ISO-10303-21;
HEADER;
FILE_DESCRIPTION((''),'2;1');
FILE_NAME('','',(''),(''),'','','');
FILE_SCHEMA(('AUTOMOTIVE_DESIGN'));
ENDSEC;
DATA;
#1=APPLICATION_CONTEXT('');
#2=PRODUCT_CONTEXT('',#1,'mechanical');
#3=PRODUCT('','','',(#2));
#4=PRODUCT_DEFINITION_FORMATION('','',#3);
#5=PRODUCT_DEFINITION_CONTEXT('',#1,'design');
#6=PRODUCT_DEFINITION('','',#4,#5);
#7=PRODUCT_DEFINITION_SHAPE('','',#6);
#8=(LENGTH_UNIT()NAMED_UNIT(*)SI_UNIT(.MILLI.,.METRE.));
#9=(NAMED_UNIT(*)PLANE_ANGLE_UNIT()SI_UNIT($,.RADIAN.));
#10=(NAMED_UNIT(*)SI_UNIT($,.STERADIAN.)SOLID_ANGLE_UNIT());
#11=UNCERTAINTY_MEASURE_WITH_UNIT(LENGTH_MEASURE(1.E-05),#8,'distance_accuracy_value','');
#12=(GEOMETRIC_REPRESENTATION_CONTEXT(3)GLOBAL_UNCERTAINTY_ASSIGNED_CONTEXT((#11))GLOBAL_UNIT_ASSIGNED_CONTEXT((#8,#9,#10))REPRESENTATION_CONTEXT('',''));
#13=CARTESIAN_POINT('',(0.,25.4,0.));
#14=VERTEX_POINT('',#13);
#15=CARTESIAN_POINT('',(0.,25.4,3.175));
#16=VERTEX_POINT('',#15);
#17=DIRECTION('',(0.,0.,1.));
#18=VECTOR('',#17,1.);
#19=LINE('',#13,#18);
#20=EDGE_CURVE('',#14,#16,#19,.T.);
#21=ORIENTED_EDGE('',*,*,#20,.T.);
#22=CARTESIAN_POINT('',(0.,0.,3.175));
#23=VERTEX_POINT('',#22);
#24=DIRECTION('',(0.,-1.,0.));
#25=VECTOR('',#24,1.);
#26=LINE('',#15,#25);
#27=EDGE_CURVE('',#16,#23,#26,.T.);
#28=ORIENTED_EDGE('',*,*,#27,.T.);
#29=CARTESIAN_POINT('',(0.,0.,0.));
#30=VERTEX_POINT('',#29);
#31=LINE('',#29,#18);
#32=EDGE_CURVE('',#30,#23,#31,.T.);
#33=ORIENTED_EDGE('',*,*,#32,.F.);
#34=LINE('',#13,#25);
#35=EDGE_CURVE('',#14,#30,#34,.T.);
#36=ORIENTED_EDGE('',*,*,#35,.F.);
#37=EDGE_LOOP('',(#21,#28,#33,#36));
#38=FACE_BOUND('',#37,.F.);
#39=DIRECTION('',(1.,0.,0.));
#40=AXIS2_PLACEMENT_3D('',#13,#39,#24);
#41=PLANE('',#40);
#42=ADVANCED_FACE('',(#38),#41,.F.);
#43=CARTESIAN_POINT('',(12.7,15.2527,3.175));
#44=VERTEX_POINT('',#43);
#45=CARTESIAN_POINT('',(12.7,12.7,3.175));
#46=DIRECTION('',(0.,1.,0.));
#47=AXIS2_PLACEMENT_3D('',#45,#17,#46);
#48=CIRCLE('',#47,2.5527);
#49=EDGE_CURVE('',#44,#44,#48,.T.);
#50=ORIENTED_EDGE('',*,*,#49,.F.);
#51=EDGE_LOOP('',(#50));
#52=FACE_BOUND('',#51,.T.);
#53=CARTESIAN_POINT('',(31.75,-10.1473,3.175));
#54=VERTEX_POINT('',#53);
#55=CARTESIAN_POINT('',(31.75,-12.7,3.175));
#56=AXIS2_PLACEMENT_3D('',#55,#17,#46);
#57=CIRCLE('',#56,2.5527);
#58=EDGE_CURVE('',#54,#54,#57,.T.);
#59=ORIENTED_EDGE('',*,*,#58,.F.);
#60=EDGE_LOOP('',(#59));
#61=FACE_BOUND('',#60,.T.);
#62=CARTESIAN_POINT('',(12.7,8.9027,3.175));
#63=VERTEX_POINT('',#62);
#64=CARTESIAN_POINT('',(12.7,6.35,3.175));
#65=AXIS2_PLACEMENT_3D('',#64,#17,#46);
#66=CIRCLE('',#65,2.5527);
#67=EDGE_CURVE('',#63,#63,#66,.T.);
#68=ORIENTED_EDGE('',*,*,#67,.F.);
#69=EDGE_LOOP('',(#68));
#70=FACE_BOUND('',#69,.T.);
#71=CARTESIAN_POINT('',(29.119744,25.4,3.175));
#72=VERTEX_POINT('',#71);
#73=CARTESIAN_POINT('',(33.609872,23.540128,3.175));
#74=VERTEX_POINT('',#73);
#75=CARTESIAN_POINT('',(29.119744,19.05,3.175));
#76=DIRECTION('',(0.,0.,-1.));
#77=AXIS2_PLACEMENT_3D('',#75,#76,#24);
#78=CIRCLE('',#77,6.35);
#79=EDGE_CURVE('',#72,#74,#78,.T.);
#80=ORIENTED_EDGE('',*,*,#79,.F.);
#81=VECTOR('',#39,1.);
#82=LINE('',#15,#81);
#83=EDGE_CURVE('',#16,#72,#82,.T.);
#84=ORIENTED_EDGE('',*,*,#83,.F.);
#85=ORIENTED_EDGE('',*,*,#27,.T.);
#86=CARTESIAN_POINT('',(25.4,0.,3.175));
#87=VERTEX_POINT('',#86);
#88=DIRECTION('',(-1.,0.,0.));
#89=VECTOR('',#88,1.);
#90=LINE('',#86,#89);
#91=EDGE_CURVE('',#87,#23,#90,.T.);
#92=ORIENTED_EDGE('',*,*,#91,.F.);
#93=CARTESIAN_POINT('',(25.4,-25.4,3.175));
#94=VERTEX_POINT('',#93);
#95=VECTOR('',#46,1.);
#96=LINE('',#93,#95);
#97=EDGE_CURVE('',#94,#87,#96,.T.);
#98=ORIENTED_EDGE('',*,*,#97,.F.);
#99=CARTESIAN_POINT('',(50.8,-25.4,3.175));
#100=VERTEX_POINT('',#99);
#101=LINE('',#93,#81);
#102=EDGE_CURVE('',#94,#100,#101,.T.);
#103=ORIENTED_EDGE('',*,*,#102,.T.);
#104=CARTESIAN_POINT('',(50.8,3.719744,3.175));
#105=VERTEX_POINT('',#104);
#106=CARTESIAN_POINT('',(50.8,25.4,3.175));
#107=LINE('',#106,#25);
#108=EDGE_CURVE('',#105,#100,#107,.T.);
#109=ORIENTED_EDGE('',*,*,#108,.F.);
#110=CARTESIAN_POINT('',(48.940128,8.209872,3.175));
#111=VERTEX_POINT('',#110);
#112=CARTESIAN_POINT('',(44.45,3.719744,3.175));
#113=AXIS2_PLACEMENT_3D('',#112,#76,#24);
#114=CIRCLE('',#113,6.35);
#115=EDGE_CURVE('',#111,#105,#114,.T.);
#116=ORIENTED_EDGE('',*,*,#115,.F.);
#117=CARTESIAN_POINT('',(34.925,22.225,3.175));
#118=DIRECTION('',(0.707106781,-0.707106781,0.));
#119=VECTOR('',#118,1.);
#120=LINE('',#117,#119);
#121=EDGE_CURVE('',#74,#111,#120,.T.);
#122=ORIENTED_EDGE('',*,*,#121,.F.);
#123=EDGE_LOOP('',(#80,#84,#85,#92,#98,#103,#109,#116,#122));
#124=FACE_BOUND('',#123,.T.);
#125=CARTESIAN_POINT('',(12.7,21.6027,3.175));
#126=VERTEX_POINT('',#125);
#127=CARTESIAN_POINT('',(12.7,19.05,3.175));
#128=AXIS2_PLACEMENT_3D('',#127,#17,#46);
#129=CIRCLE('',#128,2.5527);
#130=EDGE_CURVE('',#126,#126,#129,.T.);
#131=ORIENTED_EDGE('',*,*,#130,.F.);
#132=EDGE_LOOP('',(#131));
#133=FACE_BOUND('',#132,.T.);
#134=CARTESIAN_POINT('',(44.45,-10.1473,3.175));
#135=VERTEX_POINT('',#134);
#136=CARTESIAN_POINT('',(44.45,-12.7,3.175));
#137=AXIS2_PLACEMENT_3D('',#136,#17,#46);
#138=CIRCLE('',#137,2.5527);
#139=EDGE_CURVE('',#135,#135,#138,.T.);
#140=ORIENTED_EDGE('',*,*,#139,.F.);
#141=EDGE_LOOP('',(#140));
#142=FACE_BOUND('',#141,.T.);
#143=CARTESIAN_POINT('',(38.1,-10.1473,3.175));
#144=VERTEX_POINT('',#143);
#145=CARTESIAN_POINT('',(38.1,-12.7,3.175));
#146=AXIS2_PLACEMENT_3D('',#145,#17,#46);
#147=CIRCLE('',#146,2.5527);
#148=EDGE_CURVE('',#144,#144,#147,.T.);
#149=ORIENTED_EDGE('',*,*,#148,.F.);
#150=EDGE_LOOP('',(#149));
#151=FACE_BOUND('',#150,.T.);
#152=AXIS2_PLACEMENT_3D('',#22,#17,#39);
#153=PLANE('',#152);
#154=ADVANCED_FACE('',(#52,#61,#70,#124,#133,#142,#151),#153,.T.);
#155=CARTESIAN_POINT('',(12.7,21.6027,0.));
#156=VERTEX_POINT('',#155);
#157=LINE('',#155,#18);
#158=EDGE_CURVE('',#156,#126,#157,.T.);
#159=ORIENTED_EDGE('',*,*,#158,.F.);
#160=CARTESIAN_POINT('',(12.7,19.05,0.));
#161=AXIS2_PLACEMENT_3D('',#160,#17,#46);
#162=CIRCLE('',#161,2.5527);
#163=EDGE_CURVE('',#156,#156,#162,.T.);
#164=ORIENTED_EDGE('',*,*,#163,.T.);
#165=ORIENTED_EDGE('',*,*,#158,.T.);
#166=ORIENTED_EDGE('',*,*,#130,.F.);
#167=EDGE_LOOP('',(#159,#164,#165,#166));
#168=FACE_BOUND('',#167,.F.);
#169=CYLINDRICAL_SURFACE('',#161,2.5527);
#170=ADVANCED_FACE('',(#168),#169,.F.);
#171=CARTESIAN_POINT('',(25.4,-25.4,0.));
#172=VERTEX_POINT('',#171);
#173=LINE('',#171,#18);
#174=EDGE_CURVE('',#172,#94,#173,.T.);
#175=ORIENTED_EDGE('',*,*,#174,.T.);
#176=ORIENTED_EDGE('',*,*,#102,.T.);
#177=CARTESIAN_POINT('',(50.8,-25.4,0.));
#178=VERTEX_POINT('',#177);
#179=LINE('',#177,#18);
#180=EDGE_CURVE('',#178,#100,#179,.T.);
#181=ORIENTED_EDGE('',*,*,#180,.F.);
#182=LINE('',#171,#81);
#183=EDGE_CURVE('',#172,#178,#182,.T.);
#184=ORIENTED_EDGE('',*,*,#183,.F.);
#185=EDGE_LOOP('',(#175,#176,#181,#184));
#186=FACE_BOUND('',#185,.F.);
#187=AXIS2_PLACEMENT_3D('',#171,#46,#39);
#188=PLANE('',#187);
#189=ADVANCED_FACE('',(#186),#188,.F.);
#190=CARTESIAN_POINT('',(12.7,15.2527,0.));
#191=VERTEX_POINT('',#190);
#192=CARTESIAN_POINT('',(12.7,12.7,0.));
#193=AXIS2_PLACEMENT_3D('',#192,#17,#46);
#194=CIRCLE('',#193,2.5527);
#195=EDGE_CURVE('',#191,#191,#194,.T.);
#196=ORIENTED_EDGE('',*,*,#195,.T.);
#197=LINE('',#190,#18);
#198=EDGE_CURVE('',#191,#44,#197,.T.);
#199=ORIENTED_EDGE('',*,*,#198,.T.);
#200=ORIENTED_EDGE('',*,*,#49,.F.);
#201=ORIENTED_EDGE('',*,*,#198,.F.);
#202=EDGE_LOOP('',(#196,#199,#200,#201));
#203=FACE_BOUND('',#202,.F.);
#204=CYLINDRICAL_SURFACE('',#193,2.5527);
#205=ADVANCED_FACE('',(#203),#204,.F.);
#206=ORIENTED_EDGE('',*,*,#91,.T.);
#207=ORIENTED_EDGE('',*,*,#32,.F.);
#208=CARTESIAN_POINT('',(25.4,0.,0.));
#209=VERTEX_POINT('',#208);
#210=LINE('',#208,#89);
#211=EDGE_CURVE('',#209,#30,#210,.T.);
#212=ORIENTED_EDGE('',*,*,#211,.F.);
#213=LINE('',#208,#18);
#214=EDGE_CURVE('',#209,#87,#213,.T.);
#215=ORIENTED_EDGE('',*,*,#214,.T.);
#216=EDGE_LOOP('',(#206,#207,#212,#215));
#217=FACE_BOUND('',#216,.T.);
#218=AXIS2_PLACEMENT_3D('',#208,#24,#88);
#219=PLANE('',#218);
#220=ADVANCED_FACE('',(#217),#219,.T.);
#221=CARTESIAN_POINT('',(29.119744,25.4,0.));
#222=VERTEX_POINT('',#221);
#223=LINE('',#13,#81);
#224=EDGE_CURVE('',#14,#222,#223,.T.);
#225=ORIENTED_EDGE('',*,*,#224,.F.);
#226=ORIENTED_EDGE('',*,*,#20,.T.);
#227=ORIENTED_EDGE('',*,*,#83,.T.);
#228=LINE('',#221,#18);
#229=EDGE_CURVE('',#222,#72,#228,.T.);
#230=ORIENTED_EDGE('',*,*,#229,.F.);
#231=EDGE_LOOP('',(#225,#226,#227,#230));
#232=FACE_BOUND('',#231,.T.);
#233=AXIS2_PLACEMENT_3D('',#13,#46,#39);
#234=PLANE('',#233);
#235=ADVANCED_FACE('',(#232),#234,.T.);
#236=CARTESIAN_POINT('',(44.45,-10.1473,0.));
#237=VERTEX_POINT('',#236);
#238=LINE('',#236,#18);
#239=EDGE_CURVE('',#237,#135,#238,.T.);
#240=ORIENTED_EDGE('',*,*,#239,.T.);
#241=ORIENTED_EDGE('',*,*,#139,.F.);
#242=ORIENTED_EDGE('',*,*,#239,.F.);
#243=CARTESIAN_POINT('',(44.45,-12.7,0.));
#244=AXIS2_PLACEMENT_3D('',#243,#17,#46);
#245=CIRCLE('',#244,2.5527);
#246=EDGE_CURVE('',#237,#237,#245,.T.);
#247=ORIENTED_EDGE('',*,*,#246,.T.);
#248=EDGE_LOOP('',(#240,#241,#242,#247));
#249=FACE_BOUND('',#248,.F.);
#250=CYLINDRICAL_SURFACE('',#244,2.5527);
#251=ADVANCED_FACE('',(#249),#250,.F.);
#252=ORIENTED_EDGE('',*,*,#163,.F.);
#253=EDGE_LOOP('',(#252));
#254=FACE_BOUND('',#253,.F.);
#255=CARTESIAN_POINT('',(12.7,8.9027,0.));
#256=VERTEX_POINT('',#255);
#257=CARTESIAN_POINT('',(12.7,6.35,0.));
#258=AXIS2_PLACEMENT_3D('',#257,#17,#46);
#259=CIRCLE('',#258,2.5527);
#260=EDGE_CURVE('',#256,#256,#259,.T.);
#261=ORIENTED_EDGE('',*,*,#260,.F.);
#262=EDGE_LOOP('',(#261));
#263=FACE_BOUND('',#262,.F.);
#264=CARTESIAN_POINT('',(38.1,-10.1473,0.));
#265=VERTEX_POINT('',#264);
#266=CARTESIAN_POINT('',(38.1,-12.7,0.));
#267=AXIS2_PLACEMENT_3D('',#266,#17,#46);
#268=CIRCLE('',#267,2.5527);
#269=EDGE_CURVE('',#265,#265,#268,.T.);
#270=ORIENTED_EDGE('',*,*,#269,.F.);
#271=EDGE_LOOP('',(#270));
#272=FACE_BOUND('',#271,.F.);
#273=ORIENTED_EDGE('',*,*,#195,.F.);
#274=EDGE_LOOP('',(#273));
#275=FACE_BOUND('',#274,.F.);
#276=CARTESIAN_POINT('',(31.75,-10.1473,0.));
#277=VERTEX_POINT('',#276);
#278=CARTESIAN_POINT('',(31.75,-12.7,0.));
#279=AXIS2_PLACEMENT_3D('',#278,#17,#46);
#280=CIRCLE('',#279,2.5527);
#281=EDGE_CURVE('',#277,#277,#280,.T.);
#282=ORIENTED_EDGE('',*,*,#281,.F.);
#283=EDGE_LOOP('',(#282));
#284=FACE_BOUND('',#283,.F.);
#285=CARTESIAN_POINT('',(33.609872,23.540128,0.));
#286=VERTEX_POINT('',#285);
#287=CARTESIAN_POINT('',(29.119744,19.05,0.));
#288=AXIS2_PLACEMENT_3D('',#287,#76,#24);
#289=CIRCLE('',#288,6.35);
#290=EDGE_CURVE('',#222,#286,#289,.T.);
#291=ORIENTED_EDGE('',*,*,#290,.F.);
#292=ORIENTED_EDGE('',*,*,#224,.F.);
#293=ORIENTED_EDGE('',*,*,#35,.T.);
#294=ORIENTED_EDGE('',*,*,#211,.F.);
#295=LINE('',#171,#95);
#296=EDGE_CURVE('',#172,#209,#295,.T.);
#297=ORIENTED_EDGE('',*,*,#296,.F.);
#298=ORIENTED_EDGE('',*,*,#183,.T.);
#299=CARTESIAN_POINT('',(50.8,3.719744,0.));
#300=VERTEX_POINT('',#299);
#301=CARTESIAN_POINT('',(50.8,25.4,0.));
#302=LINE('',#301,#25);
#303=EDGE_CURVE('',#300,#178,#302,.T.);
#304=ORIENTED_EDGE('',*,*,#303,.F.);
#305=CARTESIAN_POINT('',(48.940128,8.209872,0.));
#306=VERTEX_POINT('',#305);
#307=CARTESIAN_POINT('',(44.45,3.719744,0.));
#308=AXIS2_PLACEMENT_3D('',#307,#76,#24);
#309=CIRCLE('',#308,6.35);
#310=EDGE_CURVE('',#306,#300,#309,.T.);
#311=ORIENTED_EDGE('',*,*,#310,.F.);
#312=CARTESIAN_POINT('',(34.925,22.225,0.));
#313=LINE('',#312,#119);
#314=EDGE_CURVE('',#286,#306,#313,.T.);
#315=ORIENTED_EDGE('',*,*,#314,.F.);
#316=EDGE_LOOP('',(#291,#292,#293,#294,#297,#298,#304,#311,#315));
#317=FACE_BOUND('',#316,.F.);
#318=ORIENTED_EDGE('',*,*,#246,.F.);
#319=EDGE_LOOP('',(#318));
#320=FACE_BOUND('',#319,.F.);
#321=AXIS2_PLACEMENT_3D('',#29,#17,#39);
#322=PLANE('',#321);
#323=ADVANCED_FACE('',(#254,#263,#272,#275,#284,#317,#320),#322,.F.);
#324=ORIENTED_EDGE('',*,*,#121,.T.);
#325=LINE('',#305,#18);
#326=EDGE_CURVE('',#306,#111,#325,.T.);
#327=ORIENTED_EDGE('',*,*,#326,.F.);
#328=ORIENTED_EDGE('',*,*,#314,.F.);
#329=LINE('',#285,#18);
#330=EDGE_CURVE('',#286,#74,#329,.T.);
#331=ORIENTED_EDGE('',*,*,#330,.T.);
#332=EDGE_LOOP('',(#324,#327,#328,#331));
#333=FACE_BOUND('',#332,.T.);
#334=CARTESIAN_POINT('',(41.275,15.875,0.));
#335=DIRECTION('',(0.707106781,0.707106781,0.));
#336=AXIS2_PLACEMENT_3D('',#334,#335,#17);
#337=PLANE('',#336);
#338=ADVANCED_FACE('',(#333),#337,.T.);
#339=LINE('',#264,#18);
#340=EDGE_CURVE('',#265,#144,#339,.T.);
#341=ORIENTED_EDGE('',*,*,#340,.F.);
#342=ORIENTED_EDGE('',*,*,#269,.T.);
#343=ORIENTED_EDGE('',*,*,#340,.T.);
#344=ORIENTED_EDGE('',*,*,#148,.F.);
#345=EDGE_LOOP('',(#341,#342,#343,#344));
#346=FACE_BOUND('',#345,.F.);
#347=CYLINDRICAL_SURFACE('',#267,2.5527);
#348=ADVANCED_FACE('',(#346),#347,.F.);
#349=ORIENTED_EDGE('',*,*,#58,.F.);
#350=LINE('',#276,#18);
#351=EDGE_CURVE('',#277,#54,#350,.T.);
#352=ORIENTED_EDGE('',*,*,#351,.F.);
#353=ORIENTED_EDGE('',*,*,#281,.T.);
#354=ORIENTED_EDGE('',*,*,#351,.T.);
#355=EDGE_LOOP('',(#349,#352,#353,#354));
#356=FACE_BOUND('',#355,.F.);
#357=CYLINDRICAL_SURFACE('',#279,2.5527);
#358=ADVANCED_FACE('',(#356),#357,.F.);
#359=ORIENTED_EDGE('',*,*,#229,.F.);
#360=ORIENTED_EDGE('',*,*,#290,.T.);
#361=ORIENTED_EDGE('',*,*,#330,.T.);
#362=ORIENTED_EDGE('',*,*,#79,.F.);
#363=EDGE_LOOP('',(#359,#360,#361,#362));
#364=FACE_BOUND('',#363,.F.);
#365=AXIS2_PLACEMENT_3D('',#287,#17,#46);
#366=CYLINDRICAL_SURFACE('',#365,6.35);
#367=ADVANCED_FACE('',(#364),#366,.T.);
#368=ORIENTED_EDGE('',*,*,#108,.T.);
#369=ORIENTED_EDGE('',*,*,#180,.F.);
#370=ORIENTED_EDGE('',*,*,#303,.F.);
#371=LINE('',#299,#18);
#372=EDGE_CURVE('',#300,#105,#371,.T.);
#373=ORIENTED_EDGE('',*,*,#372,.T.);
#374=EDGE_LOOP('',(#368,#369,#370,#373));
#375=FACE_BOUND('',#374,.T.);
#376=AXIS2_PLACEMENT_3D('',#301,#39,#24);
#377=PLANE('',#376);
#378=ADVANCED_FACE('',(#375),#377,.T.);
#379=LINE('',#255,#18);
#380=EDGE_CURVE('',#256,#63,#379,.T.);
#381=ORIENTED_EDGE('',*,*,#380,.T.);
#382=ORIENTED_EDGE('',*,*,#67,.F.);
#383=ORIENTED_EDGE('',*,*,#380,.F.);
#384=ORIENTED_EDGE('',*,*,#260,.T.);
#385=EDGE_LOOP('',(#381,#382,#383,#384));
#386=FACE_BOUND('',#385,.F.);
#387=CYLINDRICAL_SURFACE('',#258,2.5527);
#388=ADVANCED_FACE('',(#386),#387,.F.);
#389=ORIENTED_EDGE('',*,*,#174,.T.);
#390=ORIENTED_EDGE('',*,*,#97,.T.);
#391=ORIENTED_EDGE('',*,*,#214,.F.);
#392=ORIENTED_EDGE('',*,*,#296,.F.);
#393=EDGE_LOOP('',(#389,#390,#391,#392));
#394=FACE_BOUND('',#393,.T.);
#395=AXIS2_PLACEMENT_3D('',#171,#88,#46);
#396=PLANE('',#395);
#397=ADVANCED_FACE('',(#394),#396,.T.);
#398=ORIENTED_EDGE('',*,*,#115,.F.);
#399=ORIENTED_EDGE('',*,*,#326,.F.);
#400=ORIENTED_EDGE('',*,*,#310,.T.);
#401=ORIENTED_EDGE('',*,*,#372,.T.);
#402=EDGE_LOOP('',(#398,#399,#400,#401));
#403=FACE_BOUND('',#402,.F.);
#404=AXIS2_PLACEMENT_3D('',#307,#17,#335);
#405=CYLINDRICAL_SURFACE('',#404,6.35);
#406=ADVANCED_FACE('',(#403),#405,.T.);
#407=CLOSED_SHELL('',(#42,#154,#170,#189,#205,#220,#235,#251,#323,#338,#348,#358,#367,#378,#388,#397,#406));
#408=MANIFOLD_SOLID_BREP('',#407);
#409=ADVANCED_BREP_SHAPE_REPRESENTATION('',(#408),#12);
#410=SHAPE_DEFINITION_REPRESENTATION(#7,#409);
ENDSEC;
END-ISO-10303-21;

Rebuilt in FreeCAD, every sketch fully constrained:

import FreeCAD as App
import Part
import Sketcher

V = App.Vector
Q = App.Units.Quantity


def edges_at(feature, points):
    """Names of the edges that pass closest to the given points."""
    edges = feature.Shape.Edges
    near = lambda p: min(range(len(edges)), key=lambda i: edges[i].distToShape(Part.Vertex(*p))[0])
    return sorted({f"Edge{near(p) + 1}" for p in points})

doc = App.newDocument("Part")
params = doc.addObject("Spreadsheet::Sheet", "Params")
for row, (alias, value) in enumerate([
    ("sketch1_width", "1 in"),
    ("pad1_length", "0.125 in"),
    ("sketch2_diameter", "0.201 in"),
    ("hole_diameter", "0.201 in"),
    ("chamfer_size", "0.75 in"),
    ("fillet_radius", "0.25 in"),
], start=1):
    params.set(f"A{row}", alias)
    params.set(f"B{row}", "=" + value)
    params.setAlias(f"B{row}", alias)

body = doc.addObject("PartDesign::Body", "Body")

# Sketch on XY plane
sketch1 = doc.addObject("Sketcher::SketchObject", "Sketch")
body.addObject(sketch1)
sketch1.AttachmentSupport = (doc.XY_Plane, [""])
sketch1.MapMode = "FlatFace"
sketch1.addGeometry(Part.LineSegment(V(0, 0, 0), V(25, 0, 0)), False)
sketch1.addGeometry(Part.LineSegment(V(25, 0, 0), V(25, -25, 0)), False)
sketch1.addGeometry(Part.LineSegment(V(25, -25, 0), V(51, -25, 0)), False)
sketch1.addGeometry(Part.LineSegment(V(51, -25, 0), V(51, 25, 0)), False)
sketch1.addGeometry(Part.LineSegment(V(51, 25, 0), V(0, 25, 0)), False)
sketch1.addGeometry(Part.LineSegment(V(0, 25, 0), V(0, 0, 0)), False)
sketch1.addConstraint(Sketcher.Constraint("Coincident", 0, 2, 1, 1))
sketch1.addConstraint(Sketcher.Constraint("Coincident", 1, 2, 2, 1))
sketch1.addConstraint(Sketcher.Constraint("Coincident", 2, 2, 3, 1))
sketch1.addConstraint(Sketcher.Constraint("Coincident", 3, 2, 4, 1))
sketch1.addConstraint(Sketcher.Constraint("Coincident", 4, 2, 5, 1))
sketch1.addConstraint(Sketcher.Constraint("Coincident", 5, 2, 0, 1))
sketch1.addConstraint(Sketcher.Constraint("Horizontal", 0))
sketch1.addConstraint(Sketcher.Constraint("Vertical", 1))
sketch1.addConstraint(Sketcher.Constraint("Horizontal", 2))
sketch1.addConstraint(Sketcher.Constraint("Vertical", 3))
sketch1.addConstraint(Sketcher.Constraint("Horizontal", 4))
sketch1.addConstraint(Sketcher.Constraint("Vertical", 5))
sketch1.addConstraint(Sketcher.Constraint("Coincident", 5, 2, -1, 1))
sketch1.addConstraint(Sketcher.Constraint("Equal", 0, 2))
sketch1.addConstraint(Sketcher.Constraint("Equal", 2, 1))
sketch1.addConstraint(Sketcher.Constraint("Equal", 4, 3))
sketch1.addConstraint(Sketcher.Constraint("DistanceX", 0, 1, 0, 2, Q("1 in")))
sketch1.setExpression("Constraints[16]", "Params.sketch1_width")
pad1 = doc.addObject("PartDesign::Pad", "Pad")
body.addObject(pad1)
pad1.Profile = sketch1
pad1.setExpression("Length", "Params.pad1_length")

# Sketch on XY plane
sketch2 = doc.addObject("Sketcher::SketchObject", "Sketch001")
body.addObject(sketch2)
sketch2.AttachmentSupport = (doc.XY_Plane, [""])
sketch2.MapMode = "FlatFace"
sketch2.addGeometry(Part.Circle(V(12.7, 6.3, 0), V(0, 0, 1), 2.6), False)
sketch2.addGeometry(Part.Circle(V(12.7, 19.1, 0), V(0, 0, 1), 2.6), False)
sketch2.addGeometry(Part.Circle(V(12.7, 12.7, 0), V(0, 0, 1), 2.6), False)
sketch2.addGeometry(Part.Circle(V(31.8, -12.7, 0), V(0, 0, 1), 2.6), False)
sketch2.addGeometry(Part.Circle(V(38.1, -12.7, 0), V(0, 0, 1), 2.6), False)
sketch2.addGeometry(Part.Circle(V(44.5, -12.7, 0), V(0, 0, 1), 2.6), False)
sketch2.addConstraint(Sketcher.Constraint("Equal", 0, 1))
sketch2.addConstraint(Sketcher.Constraint("Equal", 1, 2))
sketch2.addConstraint(Sketcher.Constraint("Equal", 2, 3))
sketch2.addConstraint(Sketcher.Constraint("Equal", 3, 4))
sketch2.addConstraint(Sketcher.Constraint("Equal", 4, 5))
sketch2.addConstraint(Sketcher.Constraint("Horizontal", 3, 3, 4, 3))
sketch2.addConstraint(Sketcher.Constraint("Horizontal", 4, 3, 5, 3))
sketch2.addConstraint(Sketcher.Constraint("Vertical", 0, 3, 1, 3))
sketch2.addConstraint(Sketcher.Constraint("Vertical", 1, 3, 2, 3))
sketch2.addConstraint(Sketcher.Constraint("Diameter", 0, Q("0.201 in")))
sketch2.addConstraint(Sketcher.Constraint("DistanceY", 3, 3, 2, 3, Q("1 in")))
sketch2.addConstraint(Sketcher.Constraint("DistanceX", 0, 3, 4, 3, Q("1 in")))
sketch2.addConstraint(Sketcher.Constraint("DistanceX", -1, 1, 0, 3, Q("0.5 in")))
sketch2.addConstraint(Sketcher.Constraint("DistanceY", -1, 1, 2, 3, Q("0.5 in")))
sketch2.addConstraint(Sketcher.Constraint("DistanceY", 0, 3, 1, 3, Q("0.5 in")))
sketch2.addConstraint(Sketcher.Constraint("DistanceX", 3, 3, 5, 3, Q("0.5 in")))
sketch2.addConstraint(Sketcher.Constraint("DistanceY", -1, 1, 0, 3, Q("0.25 in")))
sketch2.addConstraint(Sketcher.Constraint("DistanceX", -1, 1, 3, 3, Q("1.25 in")))
sketch2.setExpression("Constraints[9]", "Params.sketch2_diameter")
doc.recompute()
hole = doc.addObject("PartDesign::Hole", "Hole")
body.addObject(hole)
hole.Profile = sketch2
hole.ThreadType = "None"
hole.setExpression("Diameter", "Params.hole_diameter")
hole.DepthType = "ThroughAll"
hole.Reversed = True
doc.recompute()

chamfer = doc.addObject("PartDesign::Chamfer", "Chamfer")
body.addObject(chamfer)
chamfer.Base = (hole, edges_at(hole, [(50.8, 25.4, 1.587)]))
chamfer.setExpression("Size", "Params.chamfer_size")
doc.recompute()

fillet = doc.addObject("PartDesign::Fillet", "Fillet")
body.addObject(fillet)
fillet.Base = (chamfer, edges_at(chamfer, [(31.75, 25.4, 1.587), (50.8, 6.35, 1.587)]))
fillet.setExpression("Radius", "Params.fillet_radius")

doc.recompute()
